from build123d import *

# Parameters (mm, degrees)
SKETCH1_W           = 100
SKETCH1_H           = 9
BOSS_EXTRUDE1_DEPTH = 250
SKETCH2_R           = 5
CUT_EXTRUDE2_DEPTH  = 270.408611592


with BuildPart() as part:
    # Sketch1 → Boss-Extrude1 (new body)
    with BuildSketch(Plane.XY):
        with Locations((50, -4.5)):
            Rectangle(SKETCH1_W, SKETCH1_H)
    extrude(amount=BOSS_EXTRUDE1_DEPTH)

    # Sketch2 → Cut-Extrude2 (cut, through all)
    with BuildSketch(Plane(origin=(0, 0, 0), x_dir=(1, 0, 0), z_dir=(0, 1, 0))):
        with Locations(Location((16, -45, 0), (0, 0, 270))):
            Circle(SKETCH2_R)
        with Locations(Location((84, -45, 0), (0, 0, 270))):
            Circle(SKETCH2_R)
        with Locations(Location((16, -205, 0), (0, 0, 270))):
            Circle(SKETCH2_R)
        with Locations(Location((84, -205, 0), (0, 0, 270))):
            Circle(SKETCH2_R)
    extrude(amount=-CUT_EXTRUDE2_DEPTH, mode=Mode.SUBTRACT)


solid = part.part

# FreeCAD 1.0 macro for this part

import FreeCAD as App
import Part
import Sketcher
Q = App.Units.Quantity

doc = App.newDocument("Part")
body = doc.addObject("PartDesign::Body", "Body")

sketch1 = doc.addObject("Sketcher::SketchObject", "Sketch")
body.addObject(sketch1)
sketch1.AttachmentSupport = (doc.XY_Plane, [""])
sketch1.MapMode = "FlatFace"
sketch1.addGeometry([
    Part.LineSegment(App.Vector(0, 0, 0), App.Vector(0, -9, 0)),
    Part.LineSegment(App.Vector(0, -9, 0), App.Vector(100, -9, 0)),
    Part.LineSegment(App.Vector(100, -9, 0), App.Vector(100, 0, 0)),
    Part.LineSegment(App.Vector(100, 0, 0), App.Vector(0, 0, 0)),
], False)
sketch1.addConstraint([
    Sketcher.Constraint("Coincident", 0, 2, 1, 1),
    Sketcher.Constraint("Coincident", 1, 2, 2, 1),
    Sketcher.Constraint("Coincident", 2, 2, 3, 1),
    Sketcher.Constraint("Coincident", 3, 2, 0, 1),
    Sketcher.Constraint("Vertical", 0),
    Sketcher.Constraint("Horizontal", 1),
    Sketcher.Constraint("Vertical", 2),
    Sketcher.Constraint("Horizontal", 3),
    Sketcher.Constraint("Coincident", 3, 2, -1, 1),
    Sketcher.Constraint("DistanceX", 1, 1, 1, 2, Q("100 mm")),
    Sketcher.Constraint("DistanceY", 0, 2, 0, 1, Q("9 mm")),
])
pad1 = doc.addObject("PartDesign::Pad", "Pad")
body.addObject(pad1)
pad1.Profile = sketch1
pad1.Length = 250

sketch2 = doc.addObject("Sketcher::SketchObject", "Sketch001")
body.addObject(sketch2)
sketch2.AttachmentSupport = (doc.XZ_Plane, [""])
sketch2.MapMode = "FlatFace"
sketch2.addGeometry([
    Part.Circle(App.Vector(16, 45, 0), App.Vector(0, 0, 1), 5),
    Part.Circle(App.Vector(84, 45, 0), App.Vector(0, 0, 1), 5),
    Part.Circle(App.Vector(16, 205, 0), App.Vector(0, 0, 1), 5),
    Part.Circle(App.Vector(84, 205, 0), App.Vector(0, 0, 1), 5),
], False)
sketch2.addConstraint([
    Sketcher.Constraint("Equal", 0, 1),
    Sketcher.Constraint("Equal", 1, 2),
    Sketcher.Constraint("Equal", 2, 3),
    Sketcher.Constraint("Horizontal", 0, 3, 1, 3),
    Sketcher.Constraint("Horizontal", 2, 3, 3, 3),
    Sketcher.Constraint("Vertical", 0, 3, 2, 3),
    Sketcher.Constraint("Vertical", 1, 3, 3, 3),
    Sketcher.Constraint("Diameter", 0, Q("10 mm")),
    Sketcher.Constraint("DistanceX", -1, 1, 0, 3, Q("16 mm")),
    Sketcher.Constraint("DistanceY", -1, 1, 0, 3, Q("45 mm")),
    Sketcher.Constraint("DistanceX", -1, 1, 1, 3, Q("84 mm")),
    Sketcher.Constraint("DistanceY", -1, 1, 2, 3, Q("205 mm")),
])
pocket1 = doc.addObject("PartDesign::Pocket", "Pocket")
body.addObject(pocket1)
pocket1.Profile = sketch2
pocket1.Type = "ThroughAll"
pocket1.Reversed = True

doc.recompute()
